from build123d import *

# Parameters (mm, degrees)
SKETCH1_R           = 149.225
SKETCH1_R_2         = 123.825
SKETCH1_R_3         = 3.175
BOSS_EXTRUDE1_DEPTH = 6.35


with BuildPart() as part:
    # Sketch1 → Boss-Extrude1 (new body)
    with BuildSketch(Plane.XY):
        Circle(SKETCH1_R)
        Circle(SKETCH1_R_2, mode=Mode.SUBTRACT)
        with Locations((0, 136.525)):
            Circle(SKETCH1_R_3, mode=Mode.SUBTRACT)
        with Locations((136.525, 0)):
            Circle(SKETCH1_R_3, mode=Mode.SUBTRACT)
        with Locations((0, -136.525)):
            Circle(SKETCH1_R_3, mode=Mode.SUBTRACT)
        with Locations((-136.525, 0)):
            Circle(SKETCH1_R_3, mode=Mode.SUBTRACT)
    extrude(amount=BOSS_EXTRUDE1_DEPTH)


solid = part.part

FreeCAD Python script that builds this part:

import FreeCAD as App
import Part
import Sketcher

V = App.Vector
Q = App.Units.Quantity

doc = App.newDocument("Part")
body = doc.addObject("PartDesign::Body", "Body")

# Sketch on XY plane
sketch1 = doc.addObject("Sketcher::SketchObject", "Sketch")
body.addObject(sketch1)
sketch1.AttachmentSupport = (doc.XY_Plane, [""])
sketch1.MapMode = "FlatFace"
sketch1.addGeometry(Part.Circle(V(0, 0, 0), V(0, 0, 1), 149.2), False)
sketch1.addGeometry(Part.Circle(V(0, -136.5, 0), V(0, 0, 1), 3.2), False)
sketch1.addGeometry(Part.Circle(V(0, 0, 0), V(0, 0, 1), 123.8), False)
sketch1.addGeometry(Part.Circle(V(-136.5, 0, 0), V(0, 0, 1), 3.2), False)
sketch1.addGeometry(Part.Circle(V(136.5, 0, 0), V(0, 0, 1), 3.2), False)
sketch1.addGeometry(Part.Circle(V(0, 136.5, 0), V(0, 0, 1), 3.2), False)
sketch1.addConstraint(Sketcher.Constraint("Coincident", 0, 3, -1, 1))
sketch1.addConstraint(Sketcher.Constraint("Coincident", 2, 3, -1, 1))
sketch1.addConstraint(Sketcher.Constraint("Equal", 1, 3))
sketch1.addConstraint(Sketcher.Constraint("Equal", 3, 4))
sketch1.addConstraint(Sketcher.Constraint("Equal", 4, 5))
sketch1.addConstraint(Sketcher.Constraint("Symmetric", 3, 3, 4, 3, -1, 1))
sketch1.addConstraint(Sketcher.Constraint("Symmetric", 1, 3, 5, 3, -1, 1))
sketch1.addConstraint(Sketcher.Constraint("PointOnObject", 1, 3, -2))
sketch1.addConstraint(Sketcher.Constraint("PointOnObject", 3, 3, -1))
sketch1.addConstraint(Sketcher.Constraint("Diameter", 0, Q("11.75 in")))
sketch1.addConstraint(Sketcher.Constraint("Diameter", 1, Q("0.25 in")))
sketch1.addConstraint(Sketcher.Constraint("Diameter", 2, Q("9.75 in")))
sketch1.addConstraint(Sketcher.Constraint("DistanceX", 3, 3, 4, 3, Q("10.75 in")))
sketch1.addConstraint(Sketcher.Constraint("DistanceY", 1, 3, 5, 3, Q("10.75 in")))
pad1 = doc.addObject("PartDesign::Pad", "Pad")
body.addObject(pad1)
pad1.Profile = sketch1
pad1.Length = Q("0.25 in")

doc.recompute()
